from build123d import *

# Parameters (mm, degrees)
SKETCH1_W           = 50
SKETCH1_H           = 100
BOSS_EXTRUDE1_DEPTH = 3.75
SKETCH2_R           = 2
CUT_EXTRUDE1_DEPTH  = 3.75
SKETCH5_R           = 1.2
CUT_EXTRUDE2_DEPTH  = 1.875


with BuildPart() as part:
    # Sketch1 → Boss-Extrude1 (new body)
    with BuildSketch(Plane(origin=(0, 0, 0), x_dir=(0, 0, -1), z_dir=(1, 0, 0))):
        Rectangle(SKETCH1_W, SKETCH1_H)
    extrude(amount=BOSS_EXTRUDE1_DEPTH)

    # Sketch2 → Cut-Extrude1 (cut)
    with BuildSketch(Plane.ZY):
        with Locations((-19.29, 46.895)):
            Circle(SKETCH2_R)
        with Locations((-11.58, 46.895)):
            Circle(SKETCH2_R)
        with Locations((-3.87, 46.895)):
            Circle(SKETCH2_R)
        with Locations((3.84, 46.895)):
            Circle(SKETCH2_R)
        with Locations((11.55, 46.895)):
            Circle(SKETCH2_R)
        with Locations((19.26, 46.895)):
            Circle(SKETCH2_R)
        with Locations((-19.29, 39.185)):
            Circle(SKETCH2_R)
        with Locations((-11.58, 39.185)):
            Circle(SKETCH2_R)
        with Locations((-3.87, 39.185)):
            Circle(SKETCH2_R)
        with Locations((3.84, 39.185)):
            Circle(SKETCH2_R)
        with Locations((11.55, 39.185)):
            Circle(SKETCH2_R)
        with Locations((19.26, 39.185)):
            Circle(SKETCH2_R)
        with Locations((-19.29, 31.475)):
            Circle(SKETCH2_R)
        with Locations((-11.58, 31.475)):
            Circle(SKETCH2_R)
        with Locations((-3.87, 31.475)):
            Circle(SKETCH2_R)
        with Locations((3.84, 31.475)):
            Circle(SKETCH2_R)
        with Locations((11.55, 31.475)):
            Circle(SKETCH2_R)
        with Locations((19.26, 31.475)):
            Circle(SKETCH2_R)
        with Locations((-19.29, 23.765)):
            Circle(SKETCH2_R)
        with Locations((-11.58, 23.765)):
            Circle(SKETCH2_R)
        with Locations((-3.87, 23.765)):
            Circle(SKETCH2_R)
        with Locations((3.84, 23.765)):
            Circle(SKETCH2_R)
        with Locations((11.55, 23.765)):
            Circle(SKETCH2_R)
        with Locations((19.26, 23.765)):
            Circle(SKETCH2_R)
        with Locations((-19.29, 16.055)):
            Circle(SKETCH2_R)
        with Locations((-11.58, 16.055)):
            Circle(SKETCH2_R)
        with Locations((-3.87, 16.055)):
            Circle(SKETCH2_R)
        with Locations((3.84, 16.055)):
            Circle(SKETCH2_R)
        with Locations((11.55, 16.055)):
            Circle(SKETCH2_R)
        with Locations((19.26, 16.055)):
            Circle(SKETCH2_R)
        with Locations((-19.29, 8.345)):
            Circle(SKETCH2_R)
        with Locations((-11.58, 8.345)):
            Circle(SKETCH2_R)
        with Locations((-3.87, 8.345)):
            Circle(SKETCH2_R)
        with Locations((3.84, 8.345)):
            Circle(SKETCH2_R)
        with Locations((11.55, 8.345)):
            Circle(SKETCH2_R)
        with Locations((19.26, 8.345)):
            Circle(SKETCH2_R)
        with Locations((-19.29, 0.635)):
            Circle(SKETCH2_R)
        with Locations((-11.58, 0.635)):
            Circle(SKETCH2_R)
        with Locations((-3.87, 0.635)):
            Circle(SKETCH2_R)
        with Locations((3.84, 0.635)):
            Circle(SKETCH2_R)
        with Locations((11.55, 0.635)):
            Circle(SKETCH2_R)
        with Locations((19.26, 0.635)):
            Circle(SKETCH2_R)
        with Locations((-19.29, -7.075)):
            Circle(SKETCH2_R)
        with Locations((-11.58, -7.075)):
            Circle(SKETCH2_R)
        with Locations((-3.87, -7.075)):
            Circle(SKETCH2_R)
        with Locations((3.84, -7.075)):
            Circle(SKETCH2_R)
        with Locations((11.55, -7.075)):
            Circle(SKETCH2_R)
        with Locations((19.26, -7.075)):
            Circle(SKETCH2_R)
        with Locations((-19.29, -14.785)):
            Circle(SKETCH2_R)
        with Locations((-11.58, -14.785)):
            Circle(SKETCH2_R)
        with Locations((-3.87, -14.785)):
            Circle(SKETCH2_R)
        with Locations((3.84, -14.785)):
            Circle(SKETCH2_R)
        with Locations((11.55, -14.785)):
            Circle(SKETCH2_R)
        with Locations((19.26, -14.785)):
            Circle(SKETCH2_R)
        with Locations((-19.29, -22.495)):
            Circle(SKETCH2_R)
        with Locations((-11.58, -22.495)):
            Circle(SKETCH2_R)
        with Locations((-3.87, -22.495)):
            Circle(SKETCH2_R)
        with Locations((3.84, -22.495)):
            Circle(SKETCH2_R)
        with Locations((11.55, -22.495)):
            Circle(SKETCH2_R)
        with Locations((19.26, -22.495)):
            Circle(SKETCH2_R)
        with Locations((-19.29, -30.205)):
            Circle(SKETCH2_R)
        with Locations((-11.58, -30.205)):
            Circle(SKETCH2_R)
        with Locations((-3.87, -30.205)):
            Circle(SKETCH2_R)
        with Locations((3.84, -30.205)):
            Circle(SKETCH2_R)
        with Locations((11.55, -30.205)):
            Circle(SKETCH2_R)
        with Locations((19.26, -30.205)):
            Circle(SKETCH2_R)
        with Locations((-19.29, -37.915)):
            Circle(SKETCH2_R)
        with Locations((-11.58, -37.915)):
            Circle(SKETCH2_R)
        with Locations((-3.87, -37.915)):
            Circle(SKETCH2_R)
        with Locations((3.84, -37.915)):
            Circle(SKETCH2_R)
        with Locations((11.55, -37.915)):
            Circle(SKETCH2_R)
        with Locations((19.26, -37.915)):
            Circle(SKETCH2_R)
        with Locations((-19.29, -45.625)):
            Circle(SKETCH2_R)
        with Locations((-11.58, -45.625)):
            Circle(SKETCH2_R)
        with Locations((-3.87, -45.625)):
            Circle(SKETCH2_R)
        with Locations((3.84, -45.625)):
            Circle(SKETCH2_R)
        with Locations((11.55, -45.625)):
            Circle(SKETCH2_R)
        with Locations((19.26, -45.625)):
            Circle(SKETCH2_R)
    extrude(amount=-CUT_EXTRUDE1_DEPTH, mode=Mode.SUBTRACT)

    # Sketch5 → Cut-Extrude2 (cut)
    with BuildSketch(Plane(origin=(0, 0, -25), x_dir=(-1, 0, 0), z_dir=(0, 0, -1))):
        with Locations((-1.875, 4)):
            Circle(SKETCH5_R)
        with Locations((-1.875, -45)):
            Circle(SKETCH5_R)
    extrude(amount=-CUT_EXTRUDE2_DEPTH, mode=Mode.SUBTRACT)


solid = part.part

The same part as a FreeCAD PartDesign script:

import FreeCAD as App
import Part
import Sketcher
Q = App.Units.Quantity

doc = App.newDocument("Part")
params = doc.addObject("Spreadsheet::Sheet", "Params")
for row, (alias, value) in enumerate([
    ("sketch1_width", "100 mm"),
    ("sketch1_height", "50 mm"),
    ("pad1_length", "3.75 mm"),
    ("sketch2_diameter", "4 mm"),
    ("pocket1_length", "3.75 mm"),
    ("sketch3_diameter", "2.4 mm"),
    ("pocket2_length", "1.875 mm"),
], start=1):
    params.set(f"A{row}", alias)
    params.set(f"B{row}", "=" + value)
    params.setAlias(f"B{row}", alias)

body = doc.addObject("PartDesign::Body", "Body")

sketch1 = body.newObject("Sketcher::SketchObject", "Sketch")
sketch1.AttachmentSupport = (doc.getObject("YZ_Plane"), [""])
sketch1.MapMode = "FlatFace"
sketch1.addGeometry(Part.LineSegment(App.Vector(50, 25, 0), App.Vector(-50, 25, 0)), False)
sketch1.addGeometry(Part.LineSegment(App.Vector(-50, 25, 0), App.Vector(-50, -25, 0)), False)
sketch1.addGeometry(Part.LineSegment(App.Vector(-50, -25, 0), App.Vector(50, -25, 0)), False)
sketch1.addGeometry(Part.LineSegment(App.Vector(50, -25, 0), App.Vector(50, 25, 0)), False)
sketch1.addConstraint(Sketcher.Constraint("Coincident", 0, 2, 1, 1))
sketch1.addConstraint(Sketcher.Constraint("Coincident", 1, 2, 2, 1))
sketch1.addConstraint(Sketcher.Constraint("Coincident", 2, 2, 3, 1))
sketch1.addConstraint(Sketcher.Constraint("Coincident", 3, 2, 0, 1))
sketch1.addConstraint(Sketcher.Constraint("Horizontal", 0))
sketch1.addConstraint(Sketcher.Constraint("Vertical", 1))
sketch1.addConstraint(Sketcher.Constraint("Horizontal", 2))
sketch1.addConstraint(Sketcher.Constraint("Vertical", 3))
sketch1.addConstraint(Sketcher.Constraint("Symmetric", 0, 2, 2, 2, -1, 1))
sketch1.addConstraint(Sketcher.Constraint("DistanceX", 0, 2, 0, 1, Q("100 mm")))
sketch1.addConstraint(Sketcher.Constraint("DistanceY", 1, 2, 1, 1, Q("50 mm")))
sketch1.setExpression("Constraints[9]", "Params.sketch1_width")
sketch1.setExpression("Constraints[10]", "Params.sketch1_height")
pad1 = body.newObject("PartDesign::Pad", "Pad")
pad1.Profile = sketch1
pad1.setExpression("Length", "Params.pad1_length")

sketch2 = body.newObject("Sketcher::SketchObject", "Sketch001")
sketch2.AttachmentSupport = (doc.getObject("YZ_Plane"), [""])
sketch2.MapMode = "FlatFace"
sketch2.addGeometry(Part.Circle(App.Vector(46.895, -19.29, 0), App.Vector(0, 0, 1), 2), False)
sketch2.addGeometry(Part.Circle(App.Vector(46.895, -11.58, 0), App.Vector(0, 0, 1), 2), False)
sketch2.addGeometry(Part.Circle(App.Vector(46.895, -3.87, 0), App.Vector(0, 0, 1), 2), False)
sketch2.addGeometry(Part.Circle(App.Vector(46.895, 3.84, 0), App.Vector(0, 0, 1), 2), False)
sketch2.addGeometry(Part.Circle(App.Vector(46.895, 11.55, 0), App.Vector(0, 0, 1), 2), False)
sketch2.addGeometry(Part.Circle(App.Vector(46.895, 19.26, 0), App.Vector(0, 0, 1), 2), False)
sketch2.addGeometry(Part.Circle(App.Vector(39.185, -19.29, 0), App.Vector(0, 0, 1), 2), False)
sketch2.addGeometry(Part.Circle(App.Vector(39.185, -11.58, 0), App.Vector(0, 0, 1), 2), False)
sketch2.addGeometry(Part.Circle(App.Vector(39.185, -3.87, 0), App.Vector(0, 0, 1), 2), False)
sketch2.addGeometry(Part.Circle(App.Vector(39.185, 3.84, 0), App.Vector(0, 0, 1), 2), False)
sketch2.addGeometry(Part.Circle(App.Vector(39.185, 11.55, 0), App.Vector(0, 0, 1), 2), False)
sketch2.addGeometry(Part.Circle(App.Vector(39.185, 19.26, 0), App.Vector(0, 0, 1), 2), False)
sketch2.addGeometry(Part.Circle(App.Vector(31.475, -19.29, 0), App.Vector(0, 0, 1), 2), False)
sketch2.addGeometry(Part.Circle(App.Vector(31.475, -11.58, 0), App.Vector(0, 0, 1), 2), False)
sketch2.addGeometry(Part.Circle(App.Vector(31.475, -3.87, 0), App.Vector(0, 0, 1), 2), False)
sketch2.addGeometry(Part.Circle(App.Vector(31.475, 3.84, 0), App.Vector(0, 0, 1), 2), False)
sketch2.addGeometry(Part.Circle(App.Vector(31.475, 11.55, 0), App.Vector(0, 0, 1), 2), False)
sketch2.addGeometry(Part.Circle(App.Vector(31.475, 19.26, 0), App.Vector(0, 0, 1), 2), False)
sketch2.addGeometry(Part.Circle(App.Vector(23.765, -19.29, 0), App.Vector(0, 0, 1), 2), False)
sketch2.addGeometry(Part.Circle(App.Vector(23.765, -11.58, 0), App.Vector(0, 0, 1), 2), False)
sketch2.addGeometry(Part.Circle(App.Vector(23.765, -3.87, 0), App.Vector(0, 0, 1), 2), False)
sketch2.addGeometry(Part.Circle(App.Vector(23.765, 3.84, 0), App.Vector(0, 0, 1), 2), False)
sketch2.addGeometry(Part.Circle(App.Vector(23.765, 11.55, 0), App.Vector(0, 0, 1), 2), False)
sketch2.addGeometry(Part.Circle(App.Vector(23.765, 19.26, 0), App.Vector(0, 0, 1), 2), False)
sketch2.addGeometry(Part.Circle(App.Vector(16.055, -19.29, 0), App.Vector(0, 0, 1), 2), False)
sketch2.addGeometry(Part.Circle(App.Vector(16.055, -11.58, 0), App.Vector(0, 0, 1), 2), False)
sketch2.addGeometry(Part.Circle(App.Vector(16.055, -3.87, 0), App.Vector(0, 0, 1), 2), False)
sketch2.addGeometry(Part.Circle(App.Vector(16.055, 3.84, 0), App.Vector(0, 0, 1), 2), False)
sketch2.addGeometry(Part.Circle(App.Vector(16.055, 11.55, 0), App.Vector(0, 0, 1), 2), False)
sketch2.addGeometry(Part.Circle(App.Vector(16.055, 19.26, 0), App.Vector(0, 0, 1), 2), False)
sketch2.addGeometry(Part.Circle(App.Vector(8.345, -19.29, 0), App.Vector(0, 0, 1), 2), False)
sketch2.addGeometry(Part.Circle(App.Vector(8.345, -11.58, 0), App.Vector(0, 0, 1), 2), False)
sketch2.addGeometry(Part.Circle(App.Vector(8.345, -3.87, 0), App.Vector(0, 0, 1), 2), False)
sketch2.addGeometry(Part.Circle(App.Vector(8.345, 3.84, 0), App.Vector(0, 0, 1), 2), False)
sketch2.addGeometry(Part.Circle(App.Vector(8.345, 11.55, 0), App.Vector(0, 0, 1), 2), False)
sketch2.addGeometry(Part.Circle(App.Vector(8.345, 19.26, 0), App.Vector(0, 0, 1), 2), False)
sketch2.addGeometry(Part.Circle(App.Vector(0.635, -19.29, 0), App.Vector(0, 0, 1), 2), False)
sketch2.addGeometry(Part.Circle(App.Vector(0.635, -11.58, 0), App.Vector(0, 0, 1), 2), False)
sketch2.addGeometry(Part.Circle(App.Vector(0.635, -3.87, 0), App.Vector(0, 0, 1), 2), False)
sketch2.addGeometry(Part.Circle(App.Vector(0.635, 3.84, 0), App.Vector(0, 0, 1), 2), False)
sketch2.addGeometry(Part.Circle(App.Vector(0.635, 11.55, 0), App.Vector(0, 0, 1), 2), False)
sketch2.addGeometry(Part.Circle(App.Vector(0.635, 19.26, 0), App.Vector(0, 0, 1), 2), False)
sketch2.addGeometry(Part.Circle(App.Vector(-7.075, -19.29, 0), App.Vector(0, 0, 1), 2), False)
sketch2.addGeometry(Part.Circle(App.Vector(-7.075, -11.58, 0), App.Vector(0, 0, 1), 2), False)
sketch2.addGeometry(Part.Circle(App.Vector(-7.075, -3.87, 0), App.Vector(0, 0, 1), 2), False)
sketch2.addGeometry(Part.Circle(App.Vector(-7.075, 3.84, 0), App.Vector(0, 0, 1), 2), False)
sketch2.addGeometry(Part.Circle(App.Vector(-7.075, 11.55, 0), App.Vector(0, 0, 1), 2), False)
sketch2.addGeometry(Part.Circle(App.Vector(-7.075, 19.26, 0), App.Vector(0, 0, 1), 2), False)
sketch2.addGeometry(Part.Circle(App.Vector(-14.785, -19.29, 0), App.Vector(0, 0, 1), 2), False)
sketch2.addGeometry(Part.Circle(App.Vector(-14.785, -11.58, 0), App.Vector(0, 0, 1), 2), False)
sketch2.addGeometry(Part.Circle(App.Vector(-14.785, -3.87, 0), App.Vector(0, 0, 1), 2), False)
sketch2.addGeometry(Part.Circle(App.Vector(-14.785, 3.84, 0), App.Vector(0, 0, 1), 2), False)
sketch2.addGeometry(Part.Circle(App.Vector(-14.785, 11.55, 0), App.Vector(0, 0, 1), 2), False)
sketch2.addGeometry(Part.Circle(App.Vector(-14.785, 19.26, 0), App.Vector(0, 0, 1), 2), False)
sketch2.addGeometry(Part.Circle(App.Vector(-22.495, -19.29, 0), App.Vector(0, 0, 1), 2), False)
sketch2.addGeometry(Part.Circle(App.Vector(-22.495, -11.58, 0), App.Vector(0, 0, 1), 2), False)
sketch2.addGeometry(Part.Circle(App.Vector(-22.495, -3.87, 0), App.Vector(0, 0, 1), 2), False)
sketch2.addGeometry(Part.Circle(App.Vector(-22.495, 3.84, 0), App.Vector(0, 0, 1), 2), False)
sketch2.addGeometry(Part.Circle(App.Vector(-22.495, 11.55, 0), App.Vector(0, 0, 1), 2), False)
sketch2.addGeometry(Part.Circle(App.Vector(-22.495, 19.26, 0), App.Vector(0, 0, 1), 2), False)
sketch2.addGeometry(Part.Circle(App.Vector(-30.205, -19.29, 0), App.Vector(0, 0, 1), 2), False)
sketch2.addGeometry(Part.Circle(App.Vector(-30.205, -11.58, 0), App.Vector(0, 0, 1), 2), False)
sketch2.addGeometry(Part.Circle(App.Vector(-30.205, -3.87, 0), App.Vector(0, 0, 1), 2), False)
sketch2.addGeometry(Part.Circle(App.Vector(-30.205, 3.84, 0), App.Vector(0, 0, 1), 2), False)
sketch2.addGeometry(Part.Circle(App.Vector(-30.205, 11.55, 0), App.Vector(0, 0, 1), 2), False)
sketch2.addGeometry(Part.Circle(App.Vector(-30.205, 19.26, 0), App.Vector(0, 0, 1), 2), False)
sketch2.addGeometry(Part.Circle(App.Vector(-37.915, -19.29, 0), App.Vector(0, 0, 1), 2), False)
sketch2.addGeometry(Part.Circle(App.Vector(-37.915, -11.58, 0), App.Vector(0, 0, 1), 2), False)
sketch2.addGeometry(Part.Circle(App.Vector(-37.915, -3.87, 0), App.Vector(0, 0, 1), 2), False)
sketch2.addGeometry(Part.Circle(App.Vector(-37.915, 3.84, 0), App.Vector(0, 0, 1), 2), False)
sketch2.addGeometry(Part.Circle(App.Vector(-37.915, 11.55, 0), App.Vector(0, 0, 1), 2), False)
sketch2.addGeometry(Part.Circle(App.Vector(-37.915, 19.26, 0), App.Vector(0, 0, 1), 2), False)
sketch2.addGeometry(Part.Circle(App.Vector(-45.625, -19.29, 0), App.Vector(0, 0, 1), 2), False)
sketch2.addGeometry(Part.Circle(App.Vector(-45.625, -11.58, 0), App.Vector(0, 0, 1), 2), False)
sketch2.addGeometry(Part.Circle(App.Vector(-45.625, -3.87, 0), App.Vector(0, 0, 1), 2), False)
sketch2.addGeometry(Part.Circle(App.Vector(-45.625, 3.84, 0), App.Vector(0, 0, 1), 2), False)
sketch2.addGeometry(Part.Circle(App.Vector(-45.625, 11.55, 0), App.Vector(0, 0, 1), 2), False)
sketch2.addGeometry(Part.Circle(App.Vector(-45.625, 19.26, 0), App.Vector(0, 0, 1), 2), False)
sketch2.addConstraint(Sketcher.Constraint("Equal", 0, 1))
sketch2.addConstraint(Sketcher.Constraint("Equal", 1, 2))
sketch2.addConstraint(Sketcher.Constraint("Equal", 2, 3))
sketch2.addConstraint(Sketcher.Constraint("Equal", 3, 4))
sketch2.addConstraint(Sketcher.Constraint("Equal", 4, 5))
sketch2.addConstraint(Sketcher.Constraint("Equal", 5, 6))
sketch2.addConstraint(Sketcher.Constraint("Equal", 6, 7))
sketch2.addConstraint(Sketcher.Constraint("Equal", 7, 8))
sketch2.addConstraint(Sketcher.Constraint("Equal", 8, 9))
sketch2.addConstraint(Sketcher.Constraint("Equal", 9, 10))
sketch2.addConstraint(Sketcher.Constraint("Equal", 10, 11))
sketch2.addConstraint(Sketcher.Constraint("Equal", 11, 12))
sketch2.addConstraint(Sketcher.Constraint("Equal", 12, 13))
sketch2.addConstraint(Sketcher.Constraint("Equal", 13, 14))
sketch2.addConstraint(Sketcher.Constraint("Equal", 14, 15))
sketch2.addConstraint(Sketcher.Constraint("Equal", 15, 16))
sketch2.addConstraint(Sketcher.Constraint("Equal", 16, 17))
sketch2.addConstraint(Sketcher.Constraint("Equal", 17, 18))
sketch2.addConstraint(Sketcher.Constraint("Equal", 18, 19))
sketch2.addConstraint(Sketcher.Constraint("Equal", 19, 20))
sketch2.addConstraint(Sketcher.Constraint("Equal", 20, 21))
sketch2.addConstraint(Sketcher.Constraint("Equal", 21, 22))
sketch2.addConstraint(Sketcher.Constraint("Equal", 22, 23))
sketch2.addConstraint(Sketcher.Constraint("Equal", 23, 24))
sketch2.addConstraint(Sketcher.Constraint("Equal", 24, 25))
sketch2.addConstraint(Sketcher.Constraint("Equal", 25, 26))
sketch2.addConstraint(Sketcher.Constraint("Equal", 26, 27))
sketch2.addConstraint(Sketcher.Constraint("Equal", 27, 28))
sketch2.addConstraint(Sketcher.Constraint("Equal", 28, 29))
sketch2.addConstraint(Sketcher.Constraint("Equal", 29, 30))
sketch2.addConstraint(Sketcher.Constraint("Equal", 30, 31))
sketch2.addConstraint(Sketcher.Constraint("Equal", 31, 32))
sketch2.addConstraint(Sketcher.Constraint("Equal", 32, 33))
sketch2.addConstraint(Sketcher.Constraint("Equal", 33, 34))
sketch2.addConstraint(Sketcher.Constraint("Equal", 34, 35))
sketch2.addConstraint(Sketcher.Constraint("Equal", 35, 36))
sketch2.addConstraint(Sketcher.Constraint("Equal", 36, 37))
sketch2.addConstraint(Sketcher.Constraint("Equal", 37, 38))
sketch2.addConstraint(Sketcher.Constraint("Equal", 38, 39))
sketch2.addConstraint(Sketcher.Constraint("Equal", 39, 40))
sketch2.addConstraint(Sketcher.Constraint("Equal", 40, 41))
sketch2.addConstraint(Sketcher.Constraint("Equal", 41, 42))
sketch2.addConstraint(Sketcher.Constraint("Equal", 42, 43))
sketch2.addConstraint(Sketcher.Constraint("Equal", 43, 44))
sketch2.addConstraint(Sketcher.Constraint("Equal", 44, 45))
sketch2.addConstraint(Sketcher.Constraint("Equal", 45, 46))
sketch2.addConstraint(Sketcher.Constraint("Equal", 46, 47))
sketch2.addConstraint(Sketcher.Constraint("Equal", 47, 48))
sketch2.addConstraint(Sketcher.Constraint("Equal", 48, 49))
sketch2.addConstraint(Sketcher.Constraint("Equal", 49, 50))
sketch2.addConstraint(Sketcher.Constraint("Equal", 50, 51))
sketch2.addConstraint(Sketcher.Constraint("Equal", 51, 52))
sketch2.addConstraint(Sketcher.Constraint("Equal", 52, 53))
sketch2.addConstraint(Sketcher.Constraint("Equal", 53, 54))
sketch2.addConstraint(Sketcher.Constraint("Equal", 54, 55))
sketch2.addConstraint(Sketcher.Constraint("Equal", 55, 56))
sketch2.addConstraint(Sketcher.Constraint("Equal", 56, 57))
sketch2.addConstraint(Sketcher.Constraint("Equal", 57, 58))
sketch2.addConstraint(Sketcher.Constraint("Equal", 58, 59))
sketch2.addConstraint(Sketcher.Constraint("Equal", 59, 60))
sketch2.addConstraint(Sketcher.Constraint("Equal", 60, 61))
sketch2.addConstraint(Sketcher.Constraint("Equal", 61, 62))
sketch2.addConstraint(Sketcher.Constraint("Equal", 62, 63))
sketch2.addConstraint(Sketcher.Constraint("Equal", 63, 64))
sketch2.addConstraint(Sketcher.Constraint("Equal", 64, 65))
sketch2.addConstraint(Sketcher.Constraint("Equal", 65, 66))
sketch2.addConstraint(Sketcher.Constraint("Equal", 66, 67))
sketch2.addConstraint(Sketcher.Constraint("Equal", 67, 68))
sketch2.addConstraint(Sketcher.Constraint("Equal", 68, 69))
sketch2.addConstraint(Sketcher.Constraint("Equal", 69, 70))
sketch2.addConstraint(Sketcher.Constraint("Equal", 70, 71))
sketch2.addConstraint(Sketcher.Constraint("Equal", 71, 72))
sketch2.addConstraint(Sketcher.Constraint("Equal", 72, 73))
sketch2.addConstraint(Sketcher.Constraint("Equal", 73, 74))
sketch2.addConstraint(Sketcher.Constraint("Equal", 74, 75))
sketch2.addConstraint(Sketcher.Constraint("Equal", 75, 76))
sketch2.addConstraint(Sketcher.Constraint("Equal", 76, 77))
sketch2.addConstraint(Sketcher.Constraint("Horizontal", 0, 3, 6, 3))
sketch2.addConstraint(Sketcher.Constraint("Horizontal", 1, 3, 7, 3))
sketch2.addConstraint(Sketcher.Constraint("Horizontal", 2, 3, 8, 3))
sketch2.addConstraint(Sketcher.Constraint("Horizontal", 3, 3, 9, 3))
sketch2.addConstraint(Sketcher.Constraint("Horizontal", 4, 3, 10, 3))
sketch2.addConstraint(Sketcher.Constraint("Horizontal", 5, 3, 11, 3))
sketch2.addConstraint(Sketcher.Constraint("Horizontal", 6, 3, 12, 3))
sketch2.addConstraint(Sketcher.Constraint("Horizontal", 7, 3, 13, 3))
sketch2.addConstraint(Sketcher.Constraint("Horizontal", 8, 3, 14, 3))
sketch2.addConstraint(Sketcher.Constraint("Horizontal", 9, 3, 15, 3))
sketch2.addConstraint(Sketcher.Constraint("Horizontal", 10, 3, 16, 3))
sketch2.addConstraint(Sketcher.Constraint("Horizontal", 11, 3, 17, 3))
sketch2.addConstraint(Sketcher.Constraint("Horizontal", 12, 3, 18, 3))
sketch2.addConstraint(Sketcher.Constraint("Horizontal", 13, 3, 19, 3))
sketch2.addConstraint(Sketcher.Constraint("Horizontal", 14, 3, 20, 3))
sketch2.addConstraint(Sketcher.Constraint("Horizontal", 15, 3, 21, 3))
sketch2.addConstraint(Sketcher.Constraint("Horizontal", 16, 3, 22, 3))
sketch2.addConstraint(Sketcher.Constraint("Horizontal", 17, 3, 23, 3))
sketch2.addConstraint(Sketcher.Constraint("Horizontal", 18, 3, 24, 3))
sketch2.addConstraint(Sketcher.Constraint("Horizontal", 19, 3, 25, 3))
sketch2.addConstraint(Sketcher.Constraint("Horizontal", 20, 3, 26, 3))
sketch2.addConstraint(Sketcher.Constraint("Horizontal", 21, 3, 27, 3))
sketch2.addConstraint(Sketcher.Constraint("Horizontal", 22, 3, 28, 3))
sketch2.addConstraint(Sketcher.Constraint("Horizontal", 23, 3, 29, 3))
sketch2.addConstraint(Sketcher.Constraint("Horizontal", 24, 3, 30, 3))
sketch2.addConstraint(Sketcher.Constraint("Horizontal", 25, 3, 31, 3))
sketch2.addConstraint(Sketcher.Constraint("Horizontal", 26, 3, 32, 3))
sketch2.addConstraint(Sketcher.Constraint("Horizontal", 27, 3, 33, 3))
sketch2.addConstraint(Sketcher.Constraint("Horizontal", 28, 3, 34, 3))
sketch2.addConstraint(Sketcher.Constraint("Horizontal", 29, 3, 35, 3))
sketch2.addConstraint(Sketcher.Constraint("Horizontal", 30, 3, 36, 3))
sketch2.addConstraint(Sketcher.Constraint("Horizontal", 31, 3, 37, 3))
sketch2.addConstraint(Sketcher.Constraint("Horizontal", 32, 3, 38, 3))
sketch2.addConstraint(Sketcher.Constraint("Horizontal", 33, 3, 39, 3))
sketch2.addConstraint(Sketcher.Constraint("Horizontal", 34, 3, 40, 3))
sketch2.addConstraint(Sketcher.Constraint("Horizontal", 35, 3, 41, 3))
sketch2.addConstraint(Sketcher.Constraint("Horizontal", 36, 3, 42, 3))
sketch2.addConstraint(Sketcher.Constraint("Horizontal", 37, 3, 43, 3))
sketch2.addConstraint(Sketcher.Constraint("Horizontal", 38, 3, 44, 3))
sketch2.addConstraint(Sketcher.Constraint("Horizontal", 39, 3, 45, 3))
sketch2.addConstraint(Sketcher.Constraint("Horizontal", 40, 3, 46, 3))
sketch2.addConstraint(Sketcher.Constraint("Horizontal", 41, 3, 47, 3))
sketch2.addConstraint(Sketcher.Constraint("Horizontal", 42, 3, 48, 3))
sketch2.addConstraint(Sketcher.Constraint("Horizontal", 43, 3, 49, 3))
sketch2.addConstraint(Sketcher.Constraint("Horizontal", 44, 3, 50, 3))
sketch2.addConstraint(Sketcher.Constraint("Horizontal", 45, 3, 51, 3))
sketch2.addConstraint(Sketcher.Constraint("Horizontal", 46, 3, 52, 3))
sketch2.addConstraint(Sketcher.Constraint("Horizontal", 47, 3, 53, 3))
sketch2.addConstraint(Sketcher.Constraint("Horizontal", 48, 3, 54, 3))
sketch2.addConstraint(Sketcher.Constraint("Horizontal", 49, 3, 55, 3))
sketch2.addConstraint(Sketcher.Constraint("Horizontal", 50, 3, 56, 3))
sketch2.addConstraint(Sketcher.Constraint("Horizontal", 51, 3, 57, 3))
sketch2.addConstraint(Sketcher.Constraint("Horizontal", 52, 3, 58, 3))
sketch2.addConstraint(Sketcher.Constraint("Horizontal", 53, 3, 59, 3))
sketch2.addConstraint(Sketcher.Constraint("Horizontal", 54, 3, 60, 3))
sketch2.addConstraint(Sketcher.Constraint("Horizontal", 55, 3, 61, 3))
sketch2.addConstraint(Sketcher.Constraint("Horizontal", 56, 3, 62, 3))
sketch2.addConstraint(Sketcher.Constraint("Horizontal", 57, 3, 63, 3))
sketch2.addConstraint(Sketcher.Constraint("Horizontal", 58, 3, 64, 3))
sketch2.addConstraint(Sketcher.Constraint("Horizontal", 59, 3, 65, 3))
sketch2.addConstraint(Sketcher.Constraint("Horizontal", 60, 3, 66, 3))
sketch2.addConstraint(Sketcher.Constraint("Horizontal", 61, 3, 67, 3))
sketch2.addConstraint(Sketcher.Constraint("Horizontal", 62, 3, 68, 3))
sketch2.addConstraint(Sketcher.Constraint("Horizontal", 63, 3, 69, 3))
sketch2.addConstraint(Sketcher.Constraint("Horizontal", 64, 3, 70, 3))
sketch2.addConstraint(Sketcher.Constraint("Horizontal", 65, 3, 71, 3))
sketch2.addConstraint(Sketcher.Constraint("Horizontal", 66, 3, 72, 3))
sketch2.addConstraint(Sketcher.Constraint("Horizontal", 67, 3, 73, 3))
sketch2.addConstraint(Sketcher.Constraint("Horizontal", 68, 3, 74, 3))
sketch2.addConstraint(Sketcher.Constraint("Horizontal", 69, 3, 75, 3))
sketch2.addConstraint(Sketcher.Constraint("Horizontal", 70, 3, 76, 3))
sketch2.addConstraint(Sketcher.Constraint("Horizontal", 71, 3, 77, 3))
sketch2.addConstraint(Sketcher.Constraint("Vertical", 0, 3, 1, 3))
sketch2.addConstraint(Sketcher.Constraint("Vertical", 1, 3, 2, 3))
sketch2.addConstraint(Sketcher.Constraint("Vertical", 2, 3, 3, 3))
sketch2.addConstraint(Sketcher.Constraint("Vertical", 3, 3, 4, 3))
sketch2.addConstraint(Sketcher.Constraint("Vertical", 4, 3, 5, 3))
sketch2.addConstraint(Sketcher.Constraint("Vertical", 6, 3, 7, 3))
sketch2.addConstraint(Sketcher.Constraint("Vertical", 7, 3, 8, 3))
sketch2.addConstraint(Sketcher.Constraint("Vertical", 8, 3, 9, 3))
sketch2.addConstraint(Sketcher.Constraint("Vertical", 9, 3, 10, 3))
sketch2.addConstraint(Sketcher.Constraint("Vertical", 10, 3, 11, 3))
sketch2.addConstraint(Sketcher.Constraint("Vertical", 12, 3, 13, 3))
sketch2.addConstraint(Sketcher.Constraint("Vertical", 13, 3, 14, 3))
sketch2.addConstraint(Sketcher.Constraint("Vertical", 14, 3, 15, 3))
sketch2.addConstraint(Sketcher.Constraint("Vertical", 15, 3, 16, 3))
sketch2.addConstraint(Sketcher.Constraint("Vertical", 16, 3, 17, 3))
sketch2.addConstraint(Sketcher.Constraint("Vertical", 18, 3, 19, 3))
sketch2.addConstraint(Sketcher.Constraint("Vertical", 19, 3, 20, 3))
sketch2.addConstraint(Sketcher.Constraint("Vertical", 20, 3, 21, 3))
sketch2.addConstraint(Sketcher.Constraint("Vertical", 21, 3, 22, 3))
sketch2.addConstraint(Sketcher.Constraint("Vertical", 22, 3, 23, 3))
sketch2.addConstraint(Sketcher.Constraint("Vertical", 24, 3, 25, 3))
sketch2.addConstraint(Sketcher.Constraint("Vertical", 25, 3, 26, 3))
sketch2.addConstraint(Sketcher.Constraint("Vertical", 26, 3, 27, 3))
sketch2.addConstraint(Sketcher.Constraint("Vertical", 27, 3, 28, 3))
sketch2.addConstraint(Sketcher.Constraint("Vertical", 28, 3, 29, 3))
sketch2.addConstraint(Sketcher.Constraint("Vertical", 30, 3, 31, 3))
sketch2.addConstraint(Sketcher.Constraint("Vertical", 31, 3, 32, 3))
sketch2.addConstraint(Sketcher.Constraint("Vertical", 32, 3, 33, 3))
sketch2.addConstraint(Sketcher.Constraint("Vertical", 33, 3, 34, 3))
sketch2.addConstraint(Sketcher.Constraint("Vertical", 34, 3, 35, 3))
sketch2.addConstraint(Sketcher.Constraint("Vertical", 36, 3, 37, 3))
sketch2.addConstraint(Sketcher.Constraint("Vertical", 37, 3, 38, 3))
sketch2.addConstraint(Sketcher.Constraint("Vertical", 38, 3, 39, 3))
sketch2.addConstraint(Sketcher.Constraint("Vertical", 39, 3, 40, 3))
sketch2.addConstraint(Sketcher.Constraint("Vertical", 40, 3, 41, 3))
sketch2.addConstraint(Sketcher.Constraint("Vertical", 42, 3, 43, 3))
sketch2.addConstraint(Sketcher.Constraint("Vertical", 43, 3, 44, 3))
sketch2.addConstraint(Sketcher.Constraint("Vertical", 44, 3, 45, 3))
sketch2.addConstraint(Sketcher.Constraint("Vertical", 45, 3, 46, 3))
sketch2.addConstraint(Sketcher.Constraint("Vertical", 46, 3, 47, 3))
sketch2.addConstraint(Sketcher.Constraint("Vertical", 48, 3, 49, 3))
sketch2.addConstraint(Sketcher.Constraint("Vertical", 49, 3, 50, 3))
sketch2.addConstraint(Sketcher.Constraint("Vertical", 50, 3, 51, 3))
sketch2.addConstraint(Sketcher.Constraint("Vertical", 51, 3, 52, 3))
sketch2.addConstraint(Sketcher.Constraint("Vertical", 52, 3, 53, 3))
sketch2.addConstraint(Sketcher.Constraint("Vertical", 54, 3, 55, 3))
sketch2.addConstraint(Sketcher.Constraint("Vertical", 55, 3, 56, 3))
sketch2.addConstraint(Sketcher.Constraint("Vertical", 56, 3, 57, 3))
sketch2.addConstraint(Sketcher.Constraint("Vertical", 57, 3, 58, 3))
sketch2.addConstraint(Sketcher.Constraint("Vertical", 58, 3, 59, 3))
sketch2.addConstraint(Sketcher.Constraint("Vertical", 60, 3, 61, 3))
sketch2.addConstraint(Sketcher.Constraint("Vertical", 61, 3, 62, 3))
sketch2.addConstraint(Sketcher.Constraint("Vertical", 62, 3, 63, 3))
sketch2.addConstraint(Sketcher.Constraint("Vertical", 63, 3, 64, 3))
sketch2.addConstraint(Sketcher.Constraint("Vertical", 64, 3, 65, 3))
sketch2.addConstraint(Sketcher.Constraint("Vertical", 66, 3, 67, 3))
sketch2.addConstraint(Sketcher.Constraint("Vertical", 67, 3, 68, 3))
sketch2.addConstraint(Sketcher.Constraint("Vertical", 68, 3, 69, 3))
sketch2.addConstraint(Sketcher.Constraint("Vertical", 69, 3, 70, 3))
sketch2.addConstraint(Sketcher.Constraint("Vertical", 70, 3, 71, 3))
sketch2.addConstraint(Sketcher.Constraint("Vertical", 72, 3, 73, 3))
sketch2.addConstraint(Sketcher.Constraint("Vertical", 73, 3, 74, 3))
sketch2.addConstraint(Sketcher.Constraint("Vertical", 74, 3, 75, 3))
sketch2.addConstraint(Sketcher.Constraint("Vertical", 75, 3, 76, 3))
sketch2.addConstraint(Sketcher.Constraint("Vertical", 76, 3, 77, 3))
sketch2.addConstraint(Sketcher.Constraint("Diameter", 0, Q("4 mm")))
sketch2.addConstraint(Sketcher.Constraint("DistanceY", 0, 3, -1, 1, Q("19.29 mm")))
sketch2.addConstraint(Sketcher.Constraint("DistanceY", 1, 3, -1, 1, Q("11.58 mm")))
sketch2.addConstraint(Sketcher.Constraint("DistanceY", 2, 3, -1, 1, Q("3.87 mm")))
sketch2.addConstraint(Sketcher.Constraint("DistanceY", -1, 1, 3, 3, Q("3.84 mm")))
sketch2.addConstraint(Sketcher.Constraint("DistanceY", -1, 1, 4, 3, Q("11.55 mm")))
sketch2.addConstraint(Sketcher.Constraint("DistanceY", -1, 1, 5, 3, Q("19.26 mm")))
sketch2.addConstraint(Sketcher.Constraint("DistanceX", -1, 1, 0, 3, Q("46.895 mm")))
sketch2.addConstraint(Sketcher.Constraint("DistanceX", -1, 1, 6, 3, Q("39.185 mm")))
sketch2.addConstraint(Sketcher.Constraint("DistanceX", -1, 1, 12, 3, Q("31.475 mm")))
sketch2.addConstraint(Sketcher.Constraint("DistanceX", -1, 1, 18, 3, Q("23.765 mm")))
sketch2.addConstraint(Sketcher.Constraint("DistanceX", -1, 1, 24, 3, Q("16.055 mm")))
sketch2.addConstraint(Sketcher.Constraint("DistanceX", -1, 1, 30, 3, Q("8.345 mm")))
sketch2.addConstraint(Sketcher.Constraint("DistanceX", -1, 1, 36, 3, Q("0.635 mm")))
sketch2.addConstraint(Sketcher.Constraint("DistanceX", 42, 3, -1, 1, Q("7.075 mm")))
sketch2.addConstraint(Sketcher.Constraint("DistanceX", 48, 3, -1, 1, Q("14.785 mm")))
sketch2.addConstraint(Sketcher.Constraint("DistanceX", 54, 3, -1, 1, Q("22.495 mm")))
sketch2.addConstraint(Sketcher.Constraint("DistanceX", 60, 3, -1, 1, Q("30.205 mm")))
sketch2.addConstraint(Sketcher.Constraint("DistanceX", 66, 3, -1, 1, Q("37.915 mm")))
sketch2.addConstraint(Sketcher.Constraint("DistanceX", 72, 3, -1, 1, Q("45.625 mm")))
sketch2.setExpression("Constraints[214]", "Params.sketch2_diameter")
pocket1 = body.newObject("PartDesign::Pocket", "Pocket")
pocket1.Profile = sketch2
pocket1.setExpression("Length", "Params.pocket1_length")
pocket1.Reversed = True

sketch3 = body.newObject("Sketcher::SketchObject", "Sketch002")
sketch3.AttachmentSupport = (doc.getObject("XY_Plane"), [""])
sketch3.MapMode = "FlatFace"
sketch3.AttachmentOffset = App.Placement(App.Vector(0, 0, -25), App.Rotation())
sketch3.addGeometry(Part.Circle(App.Vector(1.875, 4, 0), App.Vector(0, 0, 1), 1.2), False)
sketch3.addGeometry(Part.Circle(App.Vector(1.875, -45, 0), App.Vector(0, 0, 1), 1.2), False)
sketch3.addConstraint(Sketcher.Constraint("Equal", 0, 1))
sketch3.addConstraint(Sketcher.Constraint("Vertical", 0, 3, 1, 3))
sketch3.addConstraint(Sketcher.Constraint("Diameter", 0, Q("2.4 mm")))
sketch3.addConstraint(Sketcher.Constraint("DistanceY", -1, 1, 0, 3, Q("4 mm")))
sketch3.addConstraint(Sketcher.Constraint("DistanceY", 1, 3, -1, 1, Q("45 mm")))
sketch3.addConstraint(Sketcher.Constraint("DistanceX", -1, 1, 0, 3, Q("1.875 mm")))
sketch3.setExpression("Constraints[2]", "Params.sketch3_diameter")
pocket2 = body.newObject("PartDesign::Pocket", "Pocket001")
pocket2.Profile = sketch3
pocket2.setExpression("Length", "Params.pocket2_length")
pocket2.Reversed = True

doc.recompute()
